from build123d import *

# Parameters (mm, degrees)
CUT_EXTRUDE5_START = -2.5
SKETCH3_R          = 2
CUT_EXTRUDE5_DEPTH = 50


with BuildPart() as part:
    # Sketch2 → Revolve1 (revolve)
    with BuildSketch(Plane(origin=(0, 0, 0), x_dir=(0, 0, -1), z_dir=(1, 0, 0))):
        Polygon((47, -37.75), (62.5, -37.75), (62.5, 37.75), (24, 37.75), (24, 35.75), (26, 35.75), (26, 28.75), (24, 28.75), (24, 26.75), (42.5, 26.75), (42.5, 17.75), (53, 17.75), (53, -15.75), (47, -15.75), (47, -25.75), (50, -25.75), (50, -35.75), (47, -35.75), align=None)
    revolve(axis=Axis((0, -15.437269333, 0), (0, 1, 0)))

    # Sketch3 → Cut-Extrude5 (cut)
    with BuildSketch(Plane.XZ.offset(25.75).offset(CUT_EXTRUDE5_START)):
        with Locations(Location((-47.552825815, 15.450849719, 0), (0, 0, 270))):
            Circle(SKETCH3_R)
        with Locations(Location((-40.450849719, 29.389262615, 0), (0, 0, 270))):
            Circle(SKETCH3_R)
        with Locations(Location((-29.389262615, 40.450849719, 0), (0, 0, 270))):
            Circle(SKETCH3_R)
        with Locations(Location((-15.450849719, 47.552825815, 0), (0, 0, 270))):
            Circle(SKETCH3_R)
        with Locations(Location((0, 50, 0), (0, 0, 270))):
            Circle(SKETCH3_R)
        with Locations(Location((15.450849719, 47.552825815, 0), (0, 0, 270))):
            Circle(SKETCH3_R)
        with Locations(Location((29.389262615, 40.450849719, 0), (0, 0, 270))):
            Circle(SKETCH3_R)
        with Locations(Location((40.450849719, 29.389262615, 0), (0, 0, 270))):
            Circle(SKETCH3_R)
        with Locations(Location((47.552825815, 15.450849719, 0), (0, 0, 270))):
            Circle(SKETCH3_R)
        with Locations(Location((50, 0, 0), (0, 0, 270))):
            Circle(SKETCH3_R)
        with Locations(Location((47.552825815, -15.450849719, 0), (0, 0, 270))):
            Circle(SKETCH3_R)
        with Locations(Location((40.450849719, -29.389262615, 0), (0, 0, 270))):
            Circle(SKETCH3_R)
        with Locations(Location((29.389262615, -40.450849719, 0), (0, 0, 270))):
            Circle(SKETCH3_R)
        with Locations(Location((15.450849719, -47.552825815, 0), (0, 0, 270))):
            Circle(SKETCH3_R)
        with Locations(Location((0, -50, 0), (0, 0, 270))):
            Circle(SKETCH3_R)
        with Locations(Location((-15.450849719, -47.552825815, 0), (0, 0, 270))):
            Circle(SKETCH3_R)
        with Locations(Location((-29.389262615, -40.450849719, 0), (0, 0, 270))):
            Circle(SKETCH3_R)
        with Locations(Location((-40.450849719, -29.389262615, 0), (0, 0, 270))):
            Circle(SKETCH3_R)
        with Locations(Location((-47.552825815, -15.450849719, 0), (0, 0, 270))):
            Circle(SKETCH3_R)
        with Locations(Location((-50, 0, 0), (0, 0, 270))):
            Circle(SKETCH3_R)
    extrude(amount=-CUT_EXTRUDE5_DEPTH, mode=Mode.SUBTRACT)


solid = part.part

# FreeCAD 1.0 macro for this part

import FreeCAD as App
import Part
import Sketcher
from FreeCAD import Vector


def add_polygon(sketch, points):
    """Adds a closed chain of lines whose ends are joined by coincident constraints."""
    first, n = sketch.GeometryCount, len(points)
    for a, b in zip(points, points[1:] + points[:1]):
        sketch.addGeometry(Part.LineSegment(App.Vector(*a, 0), App.Vector(*b, 0)), False)
    for i in range(n):
        sketch.addConstraint(Sketcher.Constraint("Coincident", first + i, 2, first + (i + 1) % n, 1))

doc = App.newDocument("Part")
body = doc.addObject("PartDesign::Body", "Body")

# Sketch on YZ plane
sketch1 = doc.addObject("Sketcher::SketchObject", "Sketch")
body.addObject(sketch1)
sketch1.AttachmentSupport = (doc.YZ_Plane, [""])
sketch1.MapMode = "FlatFace"
add_polygon(sketch1, [(-37.8, -47), (-37.8, -62.5), (37.8, -62.5), (37.8, -24), (35.8, -24), (35.8, -26), (28.8, -26), (28.8, -24), (26.8, -24), (26.8, -42.5), (17.8, -42.5), (17.8, -53), (-15.8, -53), (-15.8, -47), (-25.8, -47), (-25.8, -50), (-35.8, -50), (-35.8, -47)])  # lines 0-17
sketch1.addConstraint([
    Sketcher.Constraint("Vertical", 0),
    Sketcher.Constraint("Horizontal", 1),
    Sketcher.Constraint("Vertical", 2),
    Sketcher.Constraint("Horizontal", 3),
    Sketcher.Constraint("Vertical", 4),
    Sketcher.Constraint("Horizontal", 5),
    Sketcher.Constraint("Vertical", 6),
    Sketcher.Constraint("Horizontal", 7),
    Sketcher.Constraint("Vertical", 8),
    Sketcher.Constraint("Horizontal", 9),
    Sketcher.Constraint("Vertical", 10),
    Sketcher.Constraint("Horizontal", 11),
    Sketcher.Constraint("Vertical", 12),
    Sketcher.Constraint("Horizontal", 13),
    Sketcher.Constraint("Vertical", 14),
    Sketcher.Constraint("Horizontal", 15),
    Sketcher.Constraint("Vertical", 16),
    Sketcher.Constraint("Horizontal", 17),
    Sketcher.Constraint("Horizontal", 3, 2, 6, 2),
    Sketcher.Constraint("Horizontal", 13, 2, 16, 2),
    Sketcher.Constraint("Equal", 3, 7),
    Sketcher.Constraint("Equal", 13, 15),
    Sketcher.Constraint("Equal", 7, 17),
    Sketcher.Constraint("Equal", 17, 4),
    Sketcher.Constraint("DistanceX", 3, 2, 3, 1, 2.0),
    Sketcher.Constraint("DistanceX", 5, 2, 5, 1, 7.0),
    Sketcher.Constraint("DistanceX", 9, 2, 9, 1, 9.0),
    Sketcher.Constraint("DistanceX", 13, 2, 13, 1, 10.0),
    Sketcher.Constraint("DistanceY", 12, 1, 12, 2, 6.0),
    Sketcher.Constraint("DistanceY", 14, 2, 14, 1, 3.0),
    Sketcher.Constraint("DistanceX", 1, 1, 1, 2, 75.5),
    Sketcher.Constraint("DistanceY", 0, 2, 0, 1, 15.5),
    Sketcher.Constraint("DistanceY", 2, 1, 2, 2, 38.5),
    Sketcher.Constraint("DistanceY", 8, 2, 8, 1, 18.5),
    Sketcher.Constraint("DistanceY", 2, 2, -1, 1, 24.0),
    Sketcher.Constraint("DistanceX", 0, 2, -1, 1, 37.75),
])
revolution = doc.addObject("PartDesign::Revolution", "Revolution")
body.addObject(revolution)
revolution.Profile = sketch1
revolution.ReferenceAxis = (sketch1, ["H_Axis"])
revolution.Angle = 360

# Sketch on XZ plane
sketch2 = doc.addObject("Sketcher::SketchObject", "Sketch001")
body.addObject(sketch2)
sketch2.AttachmentSupport = (doc.XZ_Plane, [""])
sketch2.MapMode = "FlatFace"
sketch2.AttachmentOffset = App.Placement(Vector(0, 0, 23.25), App.Rotation())
sketch2.addGeometry([
    Part.Circle(Vector(-47.6, 15.5, 0), Vector(0, 0, 1), 2),  # 0
    Part.Circle(Vector(-40.5, 29.4, 0), Vector(0, 0, 1), 2),  # 1
    Part.Circle(Vector(-29.4, 40.5, 0), Vector(0, 0, 1), 2),  # 2
    Part.Circle(Vector(-15.5, 47.6, 0), Vector(0, 0, 1), 2),  # 3
    Part.Circle(Vector(0, 50, 0), Vector(0, 0, 1), 2),  # 4
    Part.Circle(Vector(15.5, 47.6, 0), Vector(0, 0, 1), 2),  # 5
    Part.Circle(Vector(29.4, 40.5, 0), Vector(0, 0, 1), 2),  # 6
    Part.Circle(Vector(40.5, 29.4, 0), Vector(0, 0, 1), 2),  # 7
    Part.Circle(Vector(47.6, 15.5, 0), Vector(0, 0, 1), 2),  # 8
    Part.Circle(Vector(50, 0, 0), Vector(0, 0, 1), 2),  # 9
    Part.Circle(Vector(47.6, -15.5, 0), Vector(0, 0, 1), 2),  # 10
    Part.Circle(Vector(40.5, -29.4, 0), Vector(0, 0, 1), 2),  # 11
    Part.Circle(Vector(29.4, -40.5, 0), Vector(0, 0, 1), 2),  # 12
    Part.Circle(Vector(15.5, -47.6, 0), Vector(0, 0, 1), 2),  # 13
    Part.Circle(Vector(0, -50, 0), Vector(0, 0, 1), 2),  # 14
    Part.Circle(Vector(-15.5, -47.6, 0), Vector(0, 0, 1), 2),  # 15
    Part.Circle(Vector(-29.4, -40.5, 0), Vector(0, 0, 1), 2),  # 16
    Part.Circle(Vector(-40.5, -29.4, 0), Vector(0, 0, 1), 2),  # 17
    Part.Circle(Vector(-47.6, -15.5, 0), Vector(0, 0, 1), 2),  # 18
    Part.Circle(Vector(-50, 0, 0), Vector(0, 0, 1), 2),  # 19
], False)
sketch2.addConstraint([
    Sketcher.Constraint("Equal", 0, 1),
    Sketcher.Constraint("Equal", 1, 2),
    Sketcher.Constraint("Equal", 2, 3),
    Sketcher.Constraint("Equal", 3, 4),
    Sketcher.Constraint("Equal", 4, 5),
    Sketcher.Constraint("Equal", 5, 6),
    Sketcher.Constraint("Equal", 6, 7),
    Sketcher.Constraint("Equal", 7, 8),
    Sketcher.Constraint("Equal", 8, 9),
    Sketcher.Constraint("Equal", 9, 10),
    Sketcher.Constraint("Equal", 10, 11),
    Sketcher.Constraint("Equal", 11, 12),
    Sketcher.Constraint("Equal", 12, 13),
    Sketcher.Constraint("Equal", 13, 14),
    Sketcher.Constraint("Equal", 14, 15),
    Sketcher.Constraint("Equal", 15, 16),
    Sketcher.Constraint("Equal", 16, 17),
    Sketcher.Constraint("Equal", 17, 18),
    Sketcher.Constraint("Equal", 18, 19),
    Sketcher.Constraint("Symmetric", 0, 3, 10, 3, -1, 1),
    Sketcher.Constraint("Symmetric", 1, 3, 11, 3, -1, 1),
    Sketcher.Constraint("Symmetric", 2, 3, 12, 3, -1, 1),
    Sketcher.Constraint("Symmetric", 3, 3, 13, 3, -1, 1),
    Sketcher.Constraint("Symmetric", 4, 3, 14, 3, -1, 1),
    Sketcher.Constraint("Symmetric", 5, 3, 15, 3, -1, 1),
    Sketcher.Constraint("Symmetric", 6, 3, 16, 3, -1, 1),
    Sketcher.Constraint("Symmetric", 7, 3, 17, 3, -1, 1),
    Sketcher.Constraint("Symmetric", 8, 3, 18, 3, -1, 1),
    Sketcher.Constraint("Symmetric", 9, 3, 19, 3, -1, 1),
    Sketcher.Constraint("Symmetric", 3, 3, 5, 3, -2),
    Sketcher.Constraint("Symmetric", 2, 3, 6, 3, -2),
    Sketcher.Constraint("Symmetric", 1, 3, 7, 3, -2),
    Sketcher.Constraint("Symmetric", 0, 3, 8, 3, -2),
    Sketcher.Constraint("PointOnObject", 4, 3, -2),
    Sketcher.Constraint("PointOnObject", 9, 3, -1),
    Sketcher.Constraint("Diameter", 0, 4.0),
    Sketcher.Constraint("DistanceY", -1, 1, 4, 3, 50.0),
    Sketcher.Constraint("DistanceX", -1, 1, 9, 3, 50.0),
    Sketcher.Constraint("DistanceY", 0, 3, 2, 3, 25.0),
    Sketcher.Constraint("DistanceX", 1, 3, 3, 3, 25.0),
    Sketcher.Constraint("DistanceX", 3, 3, 5, 3, 30.901699),
    Sketcher.Constraint("DistanceY", 10, 3, 8, 3, 30.901699),
    Sketcher.Constraint("DistanceX", 0, 3, -1, 1, 47.552826),
    Sketcher.Constraint("DistanceY", -1, 1, 1, 3, 29.389263),
    Sketcher.Constraint("DistanceX", 2, 3, -1, 1, 29.389263),
    Sketcher.Constraint("DistanceY", -1, 1, 3, 3, 47.552826),
])
pocket1 = doc.addObject("PartDesign::Pocket", "Pocket")
body.addObject(pocket1)
pocket1.Profile = sketch2
pocket1.Length = 50

doc.recompute()
